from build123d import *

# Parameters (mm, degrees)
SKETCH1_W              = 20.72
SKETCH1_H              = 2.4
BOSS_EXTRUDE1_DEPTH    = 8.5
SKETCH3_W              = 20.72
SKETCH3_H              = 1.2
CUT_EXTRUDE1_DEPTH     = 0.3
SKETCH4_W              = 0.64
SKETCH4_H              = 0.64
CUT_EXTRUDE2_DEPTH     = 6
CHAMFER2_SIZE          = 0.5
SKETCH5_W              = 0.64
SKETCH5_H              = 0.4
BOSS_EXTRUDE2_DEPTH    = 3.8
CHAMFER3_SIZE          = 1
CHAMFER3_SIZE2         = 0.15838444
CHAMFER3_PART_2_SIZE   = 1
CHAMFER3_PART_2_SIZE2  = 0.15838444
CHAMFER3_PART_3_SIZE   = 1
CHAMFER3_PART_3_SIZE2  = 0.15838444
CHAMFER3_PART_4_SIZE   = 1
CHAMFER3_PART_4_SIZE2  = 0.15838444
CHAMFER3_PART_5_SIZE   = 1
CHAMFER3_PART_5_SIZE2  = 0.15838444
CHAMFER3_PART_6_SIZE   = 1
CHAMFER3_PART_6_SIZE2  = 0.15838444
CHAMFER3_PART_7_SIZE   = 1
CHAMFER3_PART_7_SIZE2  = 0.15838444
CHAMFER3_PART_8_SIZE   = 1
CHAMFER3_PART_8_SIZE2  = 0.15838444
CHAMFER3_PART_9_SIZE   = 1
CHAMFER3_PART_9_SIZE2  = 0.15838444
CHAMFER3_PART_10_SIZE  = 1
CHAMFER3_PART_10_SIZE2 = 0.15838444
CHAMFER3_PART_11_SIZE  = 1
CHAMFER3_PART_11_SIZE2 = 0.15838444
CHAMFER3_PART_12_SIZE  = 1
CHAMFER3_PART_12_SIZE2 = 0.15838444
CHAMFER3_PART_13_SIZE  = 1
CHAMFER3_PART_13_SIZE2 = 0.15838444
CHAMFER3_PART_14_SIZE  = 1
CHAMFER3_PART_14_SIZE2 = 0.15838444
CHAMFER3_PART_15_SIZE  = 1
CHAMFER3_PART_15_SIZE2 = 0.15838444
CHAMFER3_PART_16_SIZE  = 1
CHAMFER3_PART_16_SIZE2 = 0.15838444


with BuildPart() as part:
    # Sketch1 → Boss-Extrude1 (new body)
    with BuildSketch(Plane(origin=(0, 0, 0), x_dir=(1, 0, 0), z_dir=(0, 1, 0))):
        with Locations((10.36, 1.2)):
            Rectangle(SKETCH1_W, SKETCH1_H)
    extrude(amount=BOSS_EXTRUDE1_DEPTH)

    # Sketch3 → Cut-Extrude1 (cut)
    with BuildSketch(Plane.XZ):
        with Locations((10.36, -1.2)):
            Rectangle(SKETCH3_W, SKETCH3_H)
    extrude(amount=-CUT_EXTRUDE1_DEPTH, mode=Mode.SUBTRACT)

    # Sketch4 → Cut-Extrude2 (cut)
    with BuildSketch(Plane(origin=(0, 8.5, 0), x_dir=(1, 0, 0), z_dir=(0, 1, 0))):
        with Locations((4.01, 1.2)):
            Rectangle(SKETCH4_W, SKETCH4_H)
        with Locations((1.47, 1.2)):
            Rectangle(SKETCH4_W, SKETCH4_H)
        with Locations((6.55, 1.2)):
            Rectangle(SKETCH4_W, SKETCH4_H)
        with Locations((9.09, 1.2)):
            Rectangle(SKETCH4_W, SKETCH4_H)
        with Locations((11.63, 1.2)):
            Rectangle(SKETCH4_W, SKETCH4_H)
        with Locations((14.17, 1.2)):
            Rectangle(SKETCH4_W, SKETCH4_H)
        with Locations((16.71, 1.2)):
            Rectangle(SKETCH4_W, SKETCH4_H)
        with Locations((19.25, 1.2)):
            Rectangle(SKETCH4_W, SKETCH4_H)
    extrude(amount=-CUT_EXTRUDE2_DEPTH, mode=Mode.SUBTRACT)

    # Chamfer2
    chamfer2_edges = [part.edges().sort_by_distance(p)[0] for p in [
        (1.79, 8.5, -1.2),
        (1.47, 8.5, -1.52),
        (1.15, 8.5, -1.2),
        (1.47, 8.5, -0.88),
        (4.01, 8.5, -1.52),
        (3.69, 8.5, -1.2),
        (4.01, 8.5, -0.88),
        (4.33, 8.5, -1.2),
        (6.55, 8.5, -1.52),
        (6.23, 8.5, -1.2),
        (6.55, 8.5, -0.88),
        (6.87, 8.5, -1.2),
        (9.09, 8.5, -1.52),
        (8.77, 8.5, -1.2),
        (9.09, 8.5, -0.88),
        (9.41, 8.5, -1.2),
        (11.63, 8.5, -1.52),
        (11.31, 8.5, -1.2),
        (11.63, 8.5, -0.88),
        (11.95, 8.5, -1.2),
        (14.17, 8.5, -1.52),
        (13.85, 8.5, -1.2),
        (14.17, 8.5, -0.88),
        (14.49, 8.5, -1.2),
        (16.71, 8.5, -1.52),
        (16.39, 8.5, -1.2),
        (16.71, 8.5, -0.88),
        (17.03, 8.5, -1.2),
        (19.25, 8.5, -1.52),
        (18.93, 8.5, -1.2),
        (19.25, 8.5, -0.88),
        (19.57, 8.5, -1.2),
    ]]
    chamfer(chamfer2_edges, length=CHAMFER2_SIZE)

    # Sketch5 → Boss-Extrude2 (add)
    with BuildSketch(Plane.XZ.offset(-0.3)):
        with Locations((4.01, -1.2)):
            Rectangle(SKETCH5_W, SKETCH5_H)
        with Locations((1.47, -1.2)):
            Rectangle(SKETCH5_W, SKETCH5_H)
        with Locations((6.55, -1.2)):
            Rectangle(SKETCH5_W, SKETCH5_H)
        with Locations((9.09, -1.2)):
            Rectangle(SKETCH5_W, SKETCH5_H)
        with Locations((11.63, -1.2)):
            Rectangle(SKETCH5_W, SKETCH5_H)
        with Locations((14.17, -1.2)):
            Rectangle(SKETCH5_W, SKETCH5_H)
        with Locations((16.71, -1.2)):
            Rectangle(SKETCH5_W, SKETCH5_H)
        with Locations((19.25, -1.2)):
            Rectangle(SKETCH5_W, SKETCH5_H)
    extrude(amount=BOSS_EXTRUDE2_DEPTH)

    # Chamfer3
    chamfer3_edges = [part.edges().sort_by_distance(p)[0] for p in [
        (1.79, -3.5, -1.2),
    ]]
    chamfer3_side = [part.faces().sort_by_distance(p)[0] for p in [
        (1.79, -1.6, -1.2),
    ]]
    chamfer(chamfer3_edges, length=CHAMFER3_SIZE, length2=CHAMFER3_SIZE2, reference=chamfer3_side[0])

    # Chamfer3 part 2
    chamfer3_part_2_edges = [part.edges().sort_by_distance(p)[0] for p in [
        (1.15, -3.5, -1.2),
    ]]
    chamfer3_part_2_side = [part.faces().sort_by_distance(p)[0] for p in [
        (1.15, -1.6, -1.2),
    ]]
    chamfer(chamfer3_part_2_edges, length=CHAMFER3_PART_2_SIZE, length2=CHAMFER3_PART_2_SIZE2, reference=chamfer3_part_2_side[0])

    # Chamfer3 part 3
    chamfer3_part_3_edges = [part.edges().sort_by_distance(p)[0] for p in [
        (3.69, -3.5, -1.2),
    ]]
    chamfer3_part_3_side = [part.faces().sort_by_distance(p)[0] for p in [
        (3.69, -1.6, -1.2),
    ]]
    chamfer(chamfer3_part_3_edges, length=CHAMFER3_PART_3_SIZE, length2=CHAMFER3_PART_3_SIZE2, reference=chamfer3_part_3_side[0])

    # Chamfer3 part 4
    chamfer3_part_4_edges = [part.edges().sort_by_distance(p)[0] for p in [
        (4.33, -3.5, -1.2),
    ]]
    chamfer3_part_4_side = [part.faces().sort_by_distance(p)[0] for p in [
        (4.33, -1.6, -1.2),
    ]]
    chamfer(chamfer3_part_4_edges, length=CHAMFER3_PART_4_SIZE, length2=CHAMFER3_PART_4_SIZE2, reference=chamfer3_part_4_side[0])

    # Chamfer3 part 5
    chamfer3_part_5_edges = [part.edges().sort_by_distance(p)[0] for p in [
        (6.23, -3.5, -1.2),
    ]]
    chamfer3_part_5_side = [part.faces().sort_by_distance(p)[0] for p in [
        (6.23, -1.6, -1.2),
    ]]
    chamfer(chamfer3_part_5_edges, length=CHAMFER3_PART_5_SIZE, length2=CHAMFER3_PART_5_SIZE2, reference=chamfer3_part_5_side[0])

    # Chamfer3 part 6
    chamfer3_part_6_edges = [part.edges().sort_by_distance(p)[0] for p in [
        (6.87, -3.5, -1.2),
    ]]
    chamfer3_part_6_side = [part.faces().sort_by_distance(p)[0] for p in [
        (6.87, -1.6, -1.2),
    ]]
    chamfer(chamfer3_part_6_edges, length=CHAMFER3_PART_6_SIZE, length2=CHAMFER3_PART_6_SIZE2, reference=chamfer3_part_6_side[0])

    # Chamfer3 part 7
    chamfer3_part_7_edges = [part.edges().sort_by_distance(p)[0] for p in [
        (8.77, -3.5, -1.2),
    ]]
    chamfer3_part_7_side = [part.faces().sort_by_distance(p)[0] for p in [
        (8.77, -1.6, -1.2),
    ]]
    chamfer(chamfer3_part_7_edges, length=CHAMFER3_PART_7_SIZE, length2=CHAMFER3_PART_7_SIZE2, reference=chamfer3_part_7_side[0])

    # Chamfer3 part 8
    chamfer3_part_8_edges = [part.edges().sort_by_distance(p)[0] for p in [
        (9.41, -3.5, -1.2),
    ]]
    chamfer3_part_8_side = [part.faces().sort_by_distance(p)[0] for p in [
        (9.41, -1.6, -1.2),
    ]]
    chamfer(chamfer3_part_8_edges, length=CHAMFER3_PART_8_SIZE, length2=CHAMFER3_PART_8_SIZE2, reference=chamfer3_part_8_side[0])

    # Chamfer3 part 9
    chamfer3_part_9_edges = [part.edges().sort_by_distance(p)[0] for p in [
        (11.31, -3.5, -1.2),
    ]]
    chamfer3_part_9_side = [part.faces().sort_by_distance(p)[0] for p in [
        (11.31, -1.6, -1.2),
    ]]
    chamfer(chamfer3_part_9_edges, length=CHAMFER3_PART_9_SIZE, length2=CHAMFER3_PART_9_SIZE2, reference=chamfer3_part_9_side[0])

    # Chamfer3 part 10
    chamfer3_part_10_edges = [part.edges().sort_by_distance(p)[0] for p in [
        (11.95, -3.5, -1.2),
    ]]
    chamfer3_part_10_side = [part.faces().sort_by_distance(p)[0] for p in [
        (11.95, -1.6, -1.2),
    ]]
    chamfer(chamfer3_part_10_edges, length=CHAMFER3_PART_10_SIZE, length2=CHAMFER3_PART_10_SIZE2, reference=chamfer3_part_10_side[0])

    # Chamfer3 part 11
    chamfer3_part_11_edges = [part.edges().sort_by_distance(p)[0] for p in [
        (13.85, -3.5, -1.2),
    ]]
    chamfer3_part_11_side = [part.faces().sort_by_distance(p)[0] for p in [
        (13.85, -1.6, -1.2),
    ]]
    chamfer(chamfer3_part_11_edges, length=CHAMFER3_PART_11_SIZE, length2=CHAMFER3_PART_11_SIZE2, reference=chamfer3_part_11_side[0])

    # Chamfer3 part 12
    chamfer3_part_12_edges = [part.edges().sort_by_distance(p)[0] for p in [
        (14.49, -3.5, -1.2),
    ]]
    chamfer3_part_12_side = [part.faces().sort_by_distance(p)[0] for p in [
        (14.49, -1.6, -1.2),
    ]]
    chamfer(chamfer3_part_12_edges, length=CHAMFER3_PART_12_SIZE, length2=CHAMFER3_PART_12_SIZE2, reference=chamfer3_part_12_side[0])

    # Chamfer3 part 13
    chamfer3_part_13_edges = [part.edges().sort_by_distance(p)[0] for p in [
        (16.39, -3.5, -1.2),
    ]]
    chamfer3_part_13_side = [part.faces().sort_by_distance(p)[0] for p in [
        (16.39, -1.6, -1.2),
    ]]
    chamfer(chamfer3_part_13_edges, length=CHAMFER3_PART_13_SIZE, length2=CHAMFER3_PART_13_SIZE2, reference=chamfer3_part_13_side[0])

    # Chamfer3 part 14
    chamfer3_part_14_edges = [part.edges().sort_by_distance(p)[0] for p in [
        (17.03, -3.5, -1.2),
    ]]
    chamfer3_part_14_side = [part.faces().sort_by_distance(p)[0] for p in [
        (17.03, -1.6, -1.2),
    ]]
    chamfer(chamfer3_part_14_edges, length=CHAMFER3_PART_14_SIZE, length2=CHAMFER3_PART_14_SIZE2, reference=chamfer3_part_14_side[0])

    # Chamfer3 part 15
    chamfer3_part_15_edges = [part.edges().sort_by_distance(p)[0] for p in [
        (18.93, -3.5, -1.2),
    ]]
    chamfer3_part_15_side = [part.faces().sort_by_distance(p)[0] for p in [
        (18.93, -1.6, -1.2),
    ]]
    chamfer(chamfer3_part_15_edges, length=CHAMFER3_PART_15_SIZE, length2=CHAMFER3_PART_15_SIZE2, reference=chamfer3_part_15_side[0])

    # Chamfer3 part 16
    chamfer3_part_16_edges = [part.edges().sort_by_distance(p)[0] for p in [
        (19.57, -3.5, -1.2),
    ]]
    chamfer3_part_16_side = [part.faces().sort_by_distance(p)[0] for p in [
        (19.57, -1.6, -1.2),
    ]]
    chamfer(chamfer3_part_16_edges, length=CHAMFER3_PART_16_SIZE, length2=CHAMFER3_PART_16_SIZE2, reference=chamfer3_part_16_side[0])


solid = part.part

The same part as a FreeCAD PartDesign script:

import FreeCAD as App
import Part
import Sketcher
from FreeCAD import Vector


def edges_at(feature, points):
    """Names of the edges that pass closest to the given points."""
    edges = feature.Shape.Edges
    near = lambda p: min(range(len(edges)), key=lambda i: edges[i].distToShape(Part.Vertex(*p))[0])
    return sorted({f"Edge{near(p) + 1}" for p in points})


def add_polygon(sketch, points):
    """Adds a closed chain of lines whose ends are joined by coincident constraints."""
    first, n = sketch.GeometryCount, len(points)
    for a, b in zip(points, points[1:] + points[:1]):
        sketch.addGeometry(Part.LineSegment(App.Vector(*a, 0), App.Vector(*b, 0)), False)
    for i in range(n):
        sketch.addConstraint(Sketcher.Constraint("Coincident", first + i, 2, first + (i + 1) % n, 1))

doc = App.newDocument("Part")
body = doc.addObject("PartDesign::Body", "Body")

sketch1 = body.newObject("Sketcher::SketchObject", "Sketch")
sketch1.AttachmentSupport = (doc.getObject("XZ_Plane"), [""])
sketch1.MapMode = "FlatFace"
add_polygon(sketch1, [(0, -2.4), (0, 0), (20.7, 0), (20.7, -2.4)])
sketch1.addConstraint([
    Sketcher.Constraint("Vertical", 0),
    Sketcher.Constraint("Horizontal", 1),
    Sketcher.Constraint("Vertical", 2),
    Sketcher.Constraint("Horizontal", 3),
    Sketcher.Constraint("Coincident", 0, 2, -1, 1),
    Sketcher.Constraint("DistanceY", 0, 1, 0, 2, 2.4),
    Sketcher.Constraint("DistanceX", 1, 1, 1, 2, 20.72),
])
pad1 = body.newObject("PartDesign::Pad", "Pad")
pad1.Profile = sketch1
pad1.Length = 8.5
pad1.Reversed = True

sketch2 = body.newObject("Sketcher::SketchObject", "Sketch001")
sketch2.AttachmentSupport = (doc.getObject("XZ_Plane"), [""])
sketch2.MapMode = "FlatFace"
add_polygon(sketch2, [(0, -0.6), (0, -1.8), (20.7, -1.8), (20.7, -0.6)])
sketch2.addConstraint([
    Sketcher.Constraint("Vertical", 0),
    Sketcher.Constraint("Horizontal", 1),
    Sketcher.Constraint("Vertical", 2),
    Sketcher.Constraint("Horizontal", 3),
    Sketcher.Constraint("PointOnObject", 0, 2, -2),
    Sketcher.Constraint("DistanceY", 0, 2, 0, 1, 1.2),
    Sketcher.Constraint("DistanceX", 1, 1, 1, 2, 20.72),
    Sketcher.Constraint("DistanceY", 0, 2, -1, 1, 1.8),
])
pocket1 = body.newObject("PartDesign::Pocket", "Pocket")
pocket1.Profile = sketch2
pocket1.Length = 0.3

sketch3 = body.newObject("Sketcher::SketchObject", "Sketch002")
sketch3.AttachmentSupport = (doc.getObject("XZ_Plane"), [""])
sketch3.MapMode = "FlatFace"
sketch3.AttachmentOffset = App.Placement(Vector(0, 0, -8.5), App.Rotation())
add_polygon(sketch3, [(3.7, -1.5), (3.7, -0.9), (4.3, -0.9), (4.3, -1.5)])
add_polygon(sketch3, [(1.1, -1.5), (1.1, -0.9), (1.8, -0.9), (1.8, -1.5)])
add_polygon(sketch3, [(6.2, -1.5), (6.2, -0.9), (6.9, -0.9), (6.9, -1.5)])
add_polygon(sketch3, [(8.8, -1.5), (8.8, -0.9), (9.4, -0.9), (9.4, -1.5)])
add_polygon(sketch3, [(11.3, -1.5), (11.3, -0.9), (11.9, -0.9), (11.9, -1.5)])
add_polygon(sketch3, [(13.8, -1.5), (13.8, -0.9), (14.5, -0.9), (14.5, -1.5)])
add_polygon(sketch3, [(16.4, -1.5), (16.4, -0.9), (17, -0.9), (17, -1.5)])
add_polygon(sketch3, [(18.9, -1.5), (18.9, -0.9), (19.6, -0.9), (19.6, -1.5)])
sketch3.addConstraint([
    Sketcher.Constraint("Vertical", 0),
    Sketcher.Constraint("Horizontal", 1),
    Sketcher.Constraint("Vertical", 2),
    Sketcher.Constraint("Horizontal", 3),
    Sketcher.Constraint("Vertical", 4),
    Sketcher.Constraint("Horizontal", 5),
    Sketcher.Constraint("Vertical", 6),
    Sketcher.Constraint("Horizontal", 7),
    Sketcher.Constraint("Vertical", 8),
    Sketcher.Constraint("Horizontal", 9),
    Sketcher.Constraint("Vertical", 10),
    Sketcher.Constraint("Horizontal", 11),
    Sketcher.Constraint("Vertical", 12),
    Sketcher.Constraint("Horizontal", 13),
    Sketcher.Constraint("Vertical", 14),
    Sketcher.Constraint("Horizontal", 15),
    Sketcher.Constraint("Vertical", 16),
    Sketcher.Constraint("Horizontal", 17),
    Sketcher.Constraint("Vertical", 18),
    Sketcher.Constraint("Horizontal", 19),
    Sketcher.Constraint("Vertical", 20),
    Sketcher.Constraint("Horizontal", 21),
    Sketcher.Constraint("Vertical", 22),
    Sketcher.Constraint("Horizontal", 23),
    Sketcher.Constraint("Vertical", 24),
    Sketcher.Constraint("Horizontal", 25),
    Sketcher.Constraint("Vertical", 26),
    Sketcher.Constraint("Horizontal", 27),
    Sketcher.Constraint("Vertical", 28),
    Sketcher.Constraint("Horizontal", 29),
    Sketcher.Constraint("Vertical", 30),
    Sketcher.Constraint("Horizontal", 31),
    Sketcher.Constraint("Horizontal", 1, 2, 4, 2),
    Sketcher.Constraint("Horizontal", 3, 2, 6, 2),
    Sketcher.Constraint("Horizontal", 5, 2, 8, 2),
    Sketcher.Constraint("Horizontal", 7, 2, 10, 2),
    Sketcher.Constraint("Horizontal", 9, 2, 12, 2),
    Sketcher.Constraint("Horizontal", 11, 2, 14, 2),
    Sketcher.Constraint("Horizontal", 13, 2, 16, 2),
    Sketcher.Constraint("Horizontal", 15, 2, 18, 2),
    Sketcher.Constraint("Horizontal", 17, 2, 20, 2),
    Sketcher.Constraint("Horizontal", 19, 2, 22, 2),
    Sketcher.Constraint("Horizontal", 21, 2, 24, 2),
    Sketcher.Constraint("Horizontal", 23, 2, 26, 2),
    Sketcher.Constraint("Horizontal", 25, 2, 28, 2),
    Sketcher.Constraint("Horizontal", 27, 2, 30, 2),
    Sketcher.Constraint("Equal", 3, 5),
    Sketcher.Constraint("Equal", 7, 9),
    Sketcher.Constraint("Equal", 11, 13),
    Sketcher.Constraint("Equal", 15, 17),
    Sketcher.Constraint("Equal", 19, 21),
    Sketcher.Constraint("Equal", 23, 25),
    Sketcher.Constraint("Equal", 27, 29),
    Sketcher.Constraint("Equal", 31, 0),
    Sketcher.Constraint("DistanceX", 1, 1, 1, 2, 0.64),
    Sketcher.Constraint("DistanceX", 5, 2, 0, 2, 1.9),
    Sketcher.Constraint("DistanceX", 1, 2, 8, 2, 1.9),
    Sketcher.Constraint("DistanceX", 9, 2, 12, 2, 1.9),
    Sketcher.Constraint("DistanceX", 13, 2, 16, 2, 1.9),
    Sketcher.Constraint("DistanceX", 17, 2, 20, 2, 1.9),
    Sketcher.Constraint("DistanceX", 21, 2, 24, 2, 1.9),
    Sketcher.Constraint("DistanceX", 25, 2, 28, 2, 1.9),
    Sketcher.Constraint("DistanceX", -1, 1, 0, 2, 3.69),
    Sketcher.Constraint("DistanceY", 0, 2, -1, 1, 0.88),
])
pocket2 = body.newObject("PartDesign::Pocket", "Pocket001")
pocket2.Profile = sketch3
pocket2.Length = 6
pocket2.Reversed = True
doc.recompute()

chamfer = body.newObject("PartDesign::Chamfer", "Chamfer")
chamfer.Base = (pocket2, edges_at(pocket2, [
    (1.79, 8.5, -1.2),
    (1.47, 8.5, -1.52),
    (1.15, 8.5, -1.2),
    (1.47, 8.5, -0.88),
    (4.01, 8.5, -1.52),
    (3.69, 8.5, -1.2),
    (4.01, 8.5, -0.88),
    (4.33, 8.5, -1.2),
    (6.55, 8.5, -1.52),
    (6.23, 8.5, -1.2),
    (6.55, 8.5, -0.88),
    (6.87, 8.5, -1.2),
    (9.09, 8.5, -1.52),
    (8.77, 8.5, -1.2),
    (9.09, 8.5, -0.88),
    (9.41, 8.5, -1.2),
    (11.63, 8.5, -1.52),
    (11.31, 8.5, -1.2),
    (11.63, 8.5, -0.88),
    (11.95, 8.5, -1.2),
    (14.17, 8.5, -1.52),
    (13.85, 8.5, -1.2),
    (14.17, 8.5, -0.88),
    (14.49, 8.5, -1.2),
    (16.71, 8.5, -1.52),
    (16.39, 8.5, -1.2),
    (16.71, 8.5, -0.88),
    (17.03, 8.5, -1.2),
    (19.25, 8.5, -1.52),
    (18.93, 8.5, -1.2),
    (19.25, 8.5, -0.88),
    (19.57, 8.5, -1.2),
]))
chamfer.Size = 0.5

sketch4 = body.newObject("Sketcher::SketchObject", "Sketch003")
sketch4.AttachmentSupport = (doc.getObject("XZ_Plane"), [""])
sketch4.MapMode = "FlatFace"
sketch4.AttachmentOffset = App.Placement(Vector(0, 0, -0.3), App.Rotation())
add_polygon(sketch4, [(3.69, -1), (3.69, -1.4), (4.33, -1.4), (4.33, -1)])
add_polygon(sketch4, [(1.15, -1), (1.15, -1.4), (1.79, -1.4), (1.79, -1)])
add_polygon(sketch4, [(6.23, -1), (6.23, -1.4), (6.87, -1.4), (6.87, -1)])
add_polygon(sketch4, [(8.77, -1), (8.77, -1.4), (9.41, -1.4), (9.41, -1)])
add_polygon(sketch4, [(11.31, -1), (11.31, -1.4), (11.95, -1.4), (11.95, -1)])
add_polygon(sketch4, [(13.85, -1), (13.85, -1.4), (14.49, -1.4), (14.49, -1)])
add_polygon(sketch4, [(16.39, -1), (16.39, -1.4), (17.03, -1.4), (17.03, -1)])
add_polygon(sketch4, [(18.93, -1), (18.93, -1.4), (19.57, -1.4), (19.57, -1)])
sketch4.addConstraint([
    Sketcher.Constraint("Vertical", 0),
    Sketcher.Constraint("Horizontal", 1),
    Sketcher.Constraint("Vertical", 2),
    Sketcher.Constraint("Horizontal", 3),
    Sketcher.Constraint("Vertical", 4),
    Sketcher.Constraint("Horizontal", 5),
    Sketcher.Constraint("Vertical", 6),
    Sketcher.Constraint("Horizontal", 7),
    Sketcher.Constraint("Vertical", 8),
    Sketcher.Constraint("Horizontal", 9),
    Sketcher.Constraint("Vertical", 10),
    Sketcher.Constraint("Horizontal", 11),
    Sketcher.Constraint("Vertical", 12),
    Sketcher.Constraint("Horizontal", 13),
    Sketcher.Constraint("Vertical", 14),
    Sketcher.Constraint("Horizontal", 15),
    Sketcher.Constraint("Vertical", 16),
    Sketcher.Constraint("Horizontal", 17),
    Sketcher.Constraint("Vertical", 18),
    Sketcher.Constraint("Horizontal", 19),
    Sketcher.Constraint("Vertical", 20),
    Sketcher.Constraint("Horizontal", 21),
    Sketcher.Constraint("Vertical", 22),
    Sketcher.Constraint("Horizontal", 23),
    Sketcher.Constraint("Vertical", 24),
    Sketcher.Constraint("Horizontal", 25),
    Sketcher.Constraint("Vertical", 26),
    Sketcher.Constraint("Horizontal", 27),
    Sketcher.Constraint("Vertical", 28),
    Sketcher.Constraint("Horizontal", 29),
    Sketcher.Constraint("Vertical", 30),
    Sketcher.Constraint("Horizontal", 31),
    Sketcher.Constraint("Horizontal", 1, 2, 4, 2),
    Sketcher.Constraint("Horizontal", 3, 2, 6, 2),
    Sketcher.Constraint("Horizontal", 5, 2, 8, 2),
    Sketcher.Constraint("Horizontal", 7, 2, 10, 2),
    Sketcher.Constraint("Horizontal", 9, 2, 12, 2),
    Sketcher.Constraint("Horizontal", 11, 2, 14, 2),
    Sketcher.Constraint("Horizontal", 13, 2, 16, 2),
    Sketcher.Constraint("Horizontal", 15, 2, 18, 2),
    Sketcher.Constraint("Horizontal", 17, 2, 20, 2),
    Sketcher.Constraint("Horizontal", 19, 2, 22, 2),
    Sketcher.Constraint("Horizontal", 21, 2, 24, 2),
    Sketcher.Constraint("Horizontal", 23, 2, 26, 2),
    Sketcher.Constraint("Horizontal", 25, 2, 28, 2),
    Sketcher.Constraint("Horizontal", 27, 2, 30, 2),
    Sketcher.Constraint("Equal", 3, 5),
    Sketcher.Constraint("Equal", 7, 9),
    Sketcher.Constraint("Equal", 11, 13),
    Sketcher.Constraint("Equal", 15, 17),
    Sketcher.Constraint("Equal", 19, 21),
    Sketcher.Constraint("Equal", 23, 25),
    Sketcher.Constraint("Equal", 27, 29),
    Sketcher.Constraint("DistanceY", 0, 2, 0, 1, 0.4),
    Sketcher.Constraint("DistanceY", 2, 2, -1, 1, 1.0),
    Sketcher.Constraint("DistanceX", 1, 1, 1, 2, 0.64),
    Sketcher.Constraint("DistanceX", 5, 2, 0, 2, 1.9),
    Sketcher.Constraint("DistanceX", 1, 2, 8, 2, 1.9),
    Sketcher.Constraint("DistanceX", 9, 2, 12, 2, 1.9),
    Sketcher.Constraint("DistanceX", 13, 2, 16, 2, 1.9),
    Sketcher.Constraint("DistanceX", 17, 2, 20, 2, 1.9),
    Sketcher.Constraint("DistanceX", 21, 2, 24, 2, 1.9),
    Sketcher.Constraint("DistanceX", 25, 2, 28, 2, 1.9),
    Sketcher.Constraint("DistanceX", -1, 1, 0, 2, 3.69),
])
pad2 = body.newObject("PartDesign::Pad", "Pad001")
pad2.Profile = sketch4
pad2.Length = 3.8
doc.recompute()

chamfer2 = body.newObject("PartDesign::Chamfer", "Chamfer001")
chamfer2.Base = (pad2, edges_at(pad2, [(1.79, -3.5, -1.2)]))
chamfer2.ChamferType = "Two distances"
chamfer2.Size = 1
chamfer2.Size2 = 0.158384
doc.recompute()

chamfer3 = body.newObject("PartDesign::Chamfer", "Chamfer002")
chamfer3.Base = (chamfer2, edges_at(chamfer2, [(1.15, -3.5, -1.2)]))
chamfer3.ChamferType = "Two distances"
chamfer3.Size = 1
chamfer3.Size2 = 0.158384
chamfer3.FlipDirection = True
doc.recompute()

chamfer4 = body.newObject("PartDesign::Chamfer", "Chamfer003")
chamfer4.Base = (chamfer3, edges_at(chamfer3, [(3.69, -3.5, -1.2)]))
chamfer4.ChamferType = "Two distances"
chamfer4.Size = 1
chamfer4.Size2 = 0.158384
doc.recompute()

chamfer5 = body.newObject("PartDesign::Chamfer", "Chamfer004")
chamfer5.Base = (chamfer4, edges_at(chamfer4, [(4.33, -3.5, -1.2)]))
chamfer5.ChamferType = "Two distances"
chamfer5.Size = 1
chamfer5.Size2 = 0.158384
chamfer5.FlipDirection = True
doc.recompute()

chamfer6 = body.newObject("PartDesign::Chamfer", "Chamfer005")
chamfer6.Base = (chamfer5, edges_at(chamfer5, [(6.23, -3.5, -1.2)]))
chamfer6.ChamferType = "Two distances"
chamfer6.Size = 1
chamfer6.Size2 = 0.158384
doc.recompute()

chamfer7 = body.newObject("PartDesign::Chamfer", "Chamfer006")
chamfer7.Base = (chamfer6, edges_at(chamfer6, [(6.87, -3.5, -1.2)]))
chamfer7.ChamferType = "Two distances"
chamfer7.Size = 1
chamfer7.Size2 = 0.158384
chamfer7.FlipDirection = True
doc.recompute()

chamfer8 = body.newObject("PartDesign::Chamfer", "Chamfer007")
chamfer8.Base = (chamfer7, edges_at(chamfer7, [(8.77, -3.5, -1.2)]))
chamfer8.ChamferType = "Two distances"
chamfer8.Size = 1
chamfer8.Size2 = 0.158384
doc.recompute()

chamfer9 = body.newObject("PartDesign::Chamfer", "Chamfer008")
chamfer9.Base = (chamfer8, edges_at(chamfer8, [(9.41, -3.5, -1.2)]))
chamfer9.ChamferType = "Two distances"
chamfer9.Size = 1
chamfer9.Size2 = 0.158384
chamfer9.FlipDirection = True
doc.recompute()

chamfer10 = body.newObject("PartDesign::Chamfer", "Chamfer009")
chamfer10.Base = (chamfer9, edges_at(chamfer9, [(11.31, -3.5, -1.2)]))
chamfer10.ChamferType = "Two distances"
chamfer10.Size = 1
chamfer10.Size2 = 0.158384
doc.recompute()

chamfer11 = body.newObject("PartDesign::Chamfer", "Chamfer010")
chamfer11.Base = (chamfer10, edges_at(chamfer10, [(11.95, -3.5, -1.2)]))
chamfer11.ChamferType = "Two distances"
chamfer11.Size = 1
chamfer11.Size2 = 0.158384
chamfer11.FlipDirection = True
doc.recompute()

chamfer12 = body.newObject("PartDesign::Chamfer", "Chamfer011")
chamfer12.Base = (chamfer11, edges_at(chamfer11, [(13.85, -3.5, -1.2)]))
chamfer12.ChamferType = "Two distances"
chamfer12.Size = 1
chamfer12.Size2 = 0.158384
doc.recompute()

chamfer13 = body.newObject("PartDesign::Chamfer", "Chamfer012")
chamfer13.Base = (chamfer12, edges_at(chamfer12, [(14.49, -3.5, -1.2)]))
chamfer13.ChamferType = "Two distances"
chamfer13.Size = 1
chamfer13.Size2 = 0.158384
chamfer13.FlipDirection = True
doc.recompute()

chamfer14 = body.newObject("PartDesign::Chamfer", "Chamfer013")
chamfer14.Base = (chamfer13, edges_at(chamfer13, [(16.39, -3.5, -1.2)]))
chamfer14.ChamferType = "Two distances"
chamfer14.Size = 1
chamfer14.Size2 = 0.158384
doc.recompute()

chamfer15 = body.newObject("PartDesign::Chamfer", "Chamfer014")
chamfer15.Base = (chamfer14, edges_at(chamfer14, [(17.03, -3.5, -1.2)]))
chamfer15.ChamferType = "Two distances"
chamfer15.Size = 1
chamfer15.Size2 = 0.158384
chamfer15.FlipDirection = True
doc.recompute()

chamfer16 = body.newObject("PartDesign::Chamfer", "Chamfer015")
chamfer16.Base = (chamfer15, edges_at(chamfer15, [(18.93, -3.5, -1.2)]))
chamfer16.ChamferType = "Two distances"
chamfer16.Size = 1
chamfer16.Size2 = 0.158384
doc.recompute()

chamfer17 = body.newObject("PartDesign::Chamfer", "Chamfer016")
chamfer17.Base = (chamfer16, edges_at(chamfer16, [(19.57, -3.5, -1.2)]))
chamfer17.ChamferType = "Two distances"
chamfer17.Size = 1
chamfer17.Size2 = 0.158384
chamfer17.FlipDirection = True

doc.recompute()
